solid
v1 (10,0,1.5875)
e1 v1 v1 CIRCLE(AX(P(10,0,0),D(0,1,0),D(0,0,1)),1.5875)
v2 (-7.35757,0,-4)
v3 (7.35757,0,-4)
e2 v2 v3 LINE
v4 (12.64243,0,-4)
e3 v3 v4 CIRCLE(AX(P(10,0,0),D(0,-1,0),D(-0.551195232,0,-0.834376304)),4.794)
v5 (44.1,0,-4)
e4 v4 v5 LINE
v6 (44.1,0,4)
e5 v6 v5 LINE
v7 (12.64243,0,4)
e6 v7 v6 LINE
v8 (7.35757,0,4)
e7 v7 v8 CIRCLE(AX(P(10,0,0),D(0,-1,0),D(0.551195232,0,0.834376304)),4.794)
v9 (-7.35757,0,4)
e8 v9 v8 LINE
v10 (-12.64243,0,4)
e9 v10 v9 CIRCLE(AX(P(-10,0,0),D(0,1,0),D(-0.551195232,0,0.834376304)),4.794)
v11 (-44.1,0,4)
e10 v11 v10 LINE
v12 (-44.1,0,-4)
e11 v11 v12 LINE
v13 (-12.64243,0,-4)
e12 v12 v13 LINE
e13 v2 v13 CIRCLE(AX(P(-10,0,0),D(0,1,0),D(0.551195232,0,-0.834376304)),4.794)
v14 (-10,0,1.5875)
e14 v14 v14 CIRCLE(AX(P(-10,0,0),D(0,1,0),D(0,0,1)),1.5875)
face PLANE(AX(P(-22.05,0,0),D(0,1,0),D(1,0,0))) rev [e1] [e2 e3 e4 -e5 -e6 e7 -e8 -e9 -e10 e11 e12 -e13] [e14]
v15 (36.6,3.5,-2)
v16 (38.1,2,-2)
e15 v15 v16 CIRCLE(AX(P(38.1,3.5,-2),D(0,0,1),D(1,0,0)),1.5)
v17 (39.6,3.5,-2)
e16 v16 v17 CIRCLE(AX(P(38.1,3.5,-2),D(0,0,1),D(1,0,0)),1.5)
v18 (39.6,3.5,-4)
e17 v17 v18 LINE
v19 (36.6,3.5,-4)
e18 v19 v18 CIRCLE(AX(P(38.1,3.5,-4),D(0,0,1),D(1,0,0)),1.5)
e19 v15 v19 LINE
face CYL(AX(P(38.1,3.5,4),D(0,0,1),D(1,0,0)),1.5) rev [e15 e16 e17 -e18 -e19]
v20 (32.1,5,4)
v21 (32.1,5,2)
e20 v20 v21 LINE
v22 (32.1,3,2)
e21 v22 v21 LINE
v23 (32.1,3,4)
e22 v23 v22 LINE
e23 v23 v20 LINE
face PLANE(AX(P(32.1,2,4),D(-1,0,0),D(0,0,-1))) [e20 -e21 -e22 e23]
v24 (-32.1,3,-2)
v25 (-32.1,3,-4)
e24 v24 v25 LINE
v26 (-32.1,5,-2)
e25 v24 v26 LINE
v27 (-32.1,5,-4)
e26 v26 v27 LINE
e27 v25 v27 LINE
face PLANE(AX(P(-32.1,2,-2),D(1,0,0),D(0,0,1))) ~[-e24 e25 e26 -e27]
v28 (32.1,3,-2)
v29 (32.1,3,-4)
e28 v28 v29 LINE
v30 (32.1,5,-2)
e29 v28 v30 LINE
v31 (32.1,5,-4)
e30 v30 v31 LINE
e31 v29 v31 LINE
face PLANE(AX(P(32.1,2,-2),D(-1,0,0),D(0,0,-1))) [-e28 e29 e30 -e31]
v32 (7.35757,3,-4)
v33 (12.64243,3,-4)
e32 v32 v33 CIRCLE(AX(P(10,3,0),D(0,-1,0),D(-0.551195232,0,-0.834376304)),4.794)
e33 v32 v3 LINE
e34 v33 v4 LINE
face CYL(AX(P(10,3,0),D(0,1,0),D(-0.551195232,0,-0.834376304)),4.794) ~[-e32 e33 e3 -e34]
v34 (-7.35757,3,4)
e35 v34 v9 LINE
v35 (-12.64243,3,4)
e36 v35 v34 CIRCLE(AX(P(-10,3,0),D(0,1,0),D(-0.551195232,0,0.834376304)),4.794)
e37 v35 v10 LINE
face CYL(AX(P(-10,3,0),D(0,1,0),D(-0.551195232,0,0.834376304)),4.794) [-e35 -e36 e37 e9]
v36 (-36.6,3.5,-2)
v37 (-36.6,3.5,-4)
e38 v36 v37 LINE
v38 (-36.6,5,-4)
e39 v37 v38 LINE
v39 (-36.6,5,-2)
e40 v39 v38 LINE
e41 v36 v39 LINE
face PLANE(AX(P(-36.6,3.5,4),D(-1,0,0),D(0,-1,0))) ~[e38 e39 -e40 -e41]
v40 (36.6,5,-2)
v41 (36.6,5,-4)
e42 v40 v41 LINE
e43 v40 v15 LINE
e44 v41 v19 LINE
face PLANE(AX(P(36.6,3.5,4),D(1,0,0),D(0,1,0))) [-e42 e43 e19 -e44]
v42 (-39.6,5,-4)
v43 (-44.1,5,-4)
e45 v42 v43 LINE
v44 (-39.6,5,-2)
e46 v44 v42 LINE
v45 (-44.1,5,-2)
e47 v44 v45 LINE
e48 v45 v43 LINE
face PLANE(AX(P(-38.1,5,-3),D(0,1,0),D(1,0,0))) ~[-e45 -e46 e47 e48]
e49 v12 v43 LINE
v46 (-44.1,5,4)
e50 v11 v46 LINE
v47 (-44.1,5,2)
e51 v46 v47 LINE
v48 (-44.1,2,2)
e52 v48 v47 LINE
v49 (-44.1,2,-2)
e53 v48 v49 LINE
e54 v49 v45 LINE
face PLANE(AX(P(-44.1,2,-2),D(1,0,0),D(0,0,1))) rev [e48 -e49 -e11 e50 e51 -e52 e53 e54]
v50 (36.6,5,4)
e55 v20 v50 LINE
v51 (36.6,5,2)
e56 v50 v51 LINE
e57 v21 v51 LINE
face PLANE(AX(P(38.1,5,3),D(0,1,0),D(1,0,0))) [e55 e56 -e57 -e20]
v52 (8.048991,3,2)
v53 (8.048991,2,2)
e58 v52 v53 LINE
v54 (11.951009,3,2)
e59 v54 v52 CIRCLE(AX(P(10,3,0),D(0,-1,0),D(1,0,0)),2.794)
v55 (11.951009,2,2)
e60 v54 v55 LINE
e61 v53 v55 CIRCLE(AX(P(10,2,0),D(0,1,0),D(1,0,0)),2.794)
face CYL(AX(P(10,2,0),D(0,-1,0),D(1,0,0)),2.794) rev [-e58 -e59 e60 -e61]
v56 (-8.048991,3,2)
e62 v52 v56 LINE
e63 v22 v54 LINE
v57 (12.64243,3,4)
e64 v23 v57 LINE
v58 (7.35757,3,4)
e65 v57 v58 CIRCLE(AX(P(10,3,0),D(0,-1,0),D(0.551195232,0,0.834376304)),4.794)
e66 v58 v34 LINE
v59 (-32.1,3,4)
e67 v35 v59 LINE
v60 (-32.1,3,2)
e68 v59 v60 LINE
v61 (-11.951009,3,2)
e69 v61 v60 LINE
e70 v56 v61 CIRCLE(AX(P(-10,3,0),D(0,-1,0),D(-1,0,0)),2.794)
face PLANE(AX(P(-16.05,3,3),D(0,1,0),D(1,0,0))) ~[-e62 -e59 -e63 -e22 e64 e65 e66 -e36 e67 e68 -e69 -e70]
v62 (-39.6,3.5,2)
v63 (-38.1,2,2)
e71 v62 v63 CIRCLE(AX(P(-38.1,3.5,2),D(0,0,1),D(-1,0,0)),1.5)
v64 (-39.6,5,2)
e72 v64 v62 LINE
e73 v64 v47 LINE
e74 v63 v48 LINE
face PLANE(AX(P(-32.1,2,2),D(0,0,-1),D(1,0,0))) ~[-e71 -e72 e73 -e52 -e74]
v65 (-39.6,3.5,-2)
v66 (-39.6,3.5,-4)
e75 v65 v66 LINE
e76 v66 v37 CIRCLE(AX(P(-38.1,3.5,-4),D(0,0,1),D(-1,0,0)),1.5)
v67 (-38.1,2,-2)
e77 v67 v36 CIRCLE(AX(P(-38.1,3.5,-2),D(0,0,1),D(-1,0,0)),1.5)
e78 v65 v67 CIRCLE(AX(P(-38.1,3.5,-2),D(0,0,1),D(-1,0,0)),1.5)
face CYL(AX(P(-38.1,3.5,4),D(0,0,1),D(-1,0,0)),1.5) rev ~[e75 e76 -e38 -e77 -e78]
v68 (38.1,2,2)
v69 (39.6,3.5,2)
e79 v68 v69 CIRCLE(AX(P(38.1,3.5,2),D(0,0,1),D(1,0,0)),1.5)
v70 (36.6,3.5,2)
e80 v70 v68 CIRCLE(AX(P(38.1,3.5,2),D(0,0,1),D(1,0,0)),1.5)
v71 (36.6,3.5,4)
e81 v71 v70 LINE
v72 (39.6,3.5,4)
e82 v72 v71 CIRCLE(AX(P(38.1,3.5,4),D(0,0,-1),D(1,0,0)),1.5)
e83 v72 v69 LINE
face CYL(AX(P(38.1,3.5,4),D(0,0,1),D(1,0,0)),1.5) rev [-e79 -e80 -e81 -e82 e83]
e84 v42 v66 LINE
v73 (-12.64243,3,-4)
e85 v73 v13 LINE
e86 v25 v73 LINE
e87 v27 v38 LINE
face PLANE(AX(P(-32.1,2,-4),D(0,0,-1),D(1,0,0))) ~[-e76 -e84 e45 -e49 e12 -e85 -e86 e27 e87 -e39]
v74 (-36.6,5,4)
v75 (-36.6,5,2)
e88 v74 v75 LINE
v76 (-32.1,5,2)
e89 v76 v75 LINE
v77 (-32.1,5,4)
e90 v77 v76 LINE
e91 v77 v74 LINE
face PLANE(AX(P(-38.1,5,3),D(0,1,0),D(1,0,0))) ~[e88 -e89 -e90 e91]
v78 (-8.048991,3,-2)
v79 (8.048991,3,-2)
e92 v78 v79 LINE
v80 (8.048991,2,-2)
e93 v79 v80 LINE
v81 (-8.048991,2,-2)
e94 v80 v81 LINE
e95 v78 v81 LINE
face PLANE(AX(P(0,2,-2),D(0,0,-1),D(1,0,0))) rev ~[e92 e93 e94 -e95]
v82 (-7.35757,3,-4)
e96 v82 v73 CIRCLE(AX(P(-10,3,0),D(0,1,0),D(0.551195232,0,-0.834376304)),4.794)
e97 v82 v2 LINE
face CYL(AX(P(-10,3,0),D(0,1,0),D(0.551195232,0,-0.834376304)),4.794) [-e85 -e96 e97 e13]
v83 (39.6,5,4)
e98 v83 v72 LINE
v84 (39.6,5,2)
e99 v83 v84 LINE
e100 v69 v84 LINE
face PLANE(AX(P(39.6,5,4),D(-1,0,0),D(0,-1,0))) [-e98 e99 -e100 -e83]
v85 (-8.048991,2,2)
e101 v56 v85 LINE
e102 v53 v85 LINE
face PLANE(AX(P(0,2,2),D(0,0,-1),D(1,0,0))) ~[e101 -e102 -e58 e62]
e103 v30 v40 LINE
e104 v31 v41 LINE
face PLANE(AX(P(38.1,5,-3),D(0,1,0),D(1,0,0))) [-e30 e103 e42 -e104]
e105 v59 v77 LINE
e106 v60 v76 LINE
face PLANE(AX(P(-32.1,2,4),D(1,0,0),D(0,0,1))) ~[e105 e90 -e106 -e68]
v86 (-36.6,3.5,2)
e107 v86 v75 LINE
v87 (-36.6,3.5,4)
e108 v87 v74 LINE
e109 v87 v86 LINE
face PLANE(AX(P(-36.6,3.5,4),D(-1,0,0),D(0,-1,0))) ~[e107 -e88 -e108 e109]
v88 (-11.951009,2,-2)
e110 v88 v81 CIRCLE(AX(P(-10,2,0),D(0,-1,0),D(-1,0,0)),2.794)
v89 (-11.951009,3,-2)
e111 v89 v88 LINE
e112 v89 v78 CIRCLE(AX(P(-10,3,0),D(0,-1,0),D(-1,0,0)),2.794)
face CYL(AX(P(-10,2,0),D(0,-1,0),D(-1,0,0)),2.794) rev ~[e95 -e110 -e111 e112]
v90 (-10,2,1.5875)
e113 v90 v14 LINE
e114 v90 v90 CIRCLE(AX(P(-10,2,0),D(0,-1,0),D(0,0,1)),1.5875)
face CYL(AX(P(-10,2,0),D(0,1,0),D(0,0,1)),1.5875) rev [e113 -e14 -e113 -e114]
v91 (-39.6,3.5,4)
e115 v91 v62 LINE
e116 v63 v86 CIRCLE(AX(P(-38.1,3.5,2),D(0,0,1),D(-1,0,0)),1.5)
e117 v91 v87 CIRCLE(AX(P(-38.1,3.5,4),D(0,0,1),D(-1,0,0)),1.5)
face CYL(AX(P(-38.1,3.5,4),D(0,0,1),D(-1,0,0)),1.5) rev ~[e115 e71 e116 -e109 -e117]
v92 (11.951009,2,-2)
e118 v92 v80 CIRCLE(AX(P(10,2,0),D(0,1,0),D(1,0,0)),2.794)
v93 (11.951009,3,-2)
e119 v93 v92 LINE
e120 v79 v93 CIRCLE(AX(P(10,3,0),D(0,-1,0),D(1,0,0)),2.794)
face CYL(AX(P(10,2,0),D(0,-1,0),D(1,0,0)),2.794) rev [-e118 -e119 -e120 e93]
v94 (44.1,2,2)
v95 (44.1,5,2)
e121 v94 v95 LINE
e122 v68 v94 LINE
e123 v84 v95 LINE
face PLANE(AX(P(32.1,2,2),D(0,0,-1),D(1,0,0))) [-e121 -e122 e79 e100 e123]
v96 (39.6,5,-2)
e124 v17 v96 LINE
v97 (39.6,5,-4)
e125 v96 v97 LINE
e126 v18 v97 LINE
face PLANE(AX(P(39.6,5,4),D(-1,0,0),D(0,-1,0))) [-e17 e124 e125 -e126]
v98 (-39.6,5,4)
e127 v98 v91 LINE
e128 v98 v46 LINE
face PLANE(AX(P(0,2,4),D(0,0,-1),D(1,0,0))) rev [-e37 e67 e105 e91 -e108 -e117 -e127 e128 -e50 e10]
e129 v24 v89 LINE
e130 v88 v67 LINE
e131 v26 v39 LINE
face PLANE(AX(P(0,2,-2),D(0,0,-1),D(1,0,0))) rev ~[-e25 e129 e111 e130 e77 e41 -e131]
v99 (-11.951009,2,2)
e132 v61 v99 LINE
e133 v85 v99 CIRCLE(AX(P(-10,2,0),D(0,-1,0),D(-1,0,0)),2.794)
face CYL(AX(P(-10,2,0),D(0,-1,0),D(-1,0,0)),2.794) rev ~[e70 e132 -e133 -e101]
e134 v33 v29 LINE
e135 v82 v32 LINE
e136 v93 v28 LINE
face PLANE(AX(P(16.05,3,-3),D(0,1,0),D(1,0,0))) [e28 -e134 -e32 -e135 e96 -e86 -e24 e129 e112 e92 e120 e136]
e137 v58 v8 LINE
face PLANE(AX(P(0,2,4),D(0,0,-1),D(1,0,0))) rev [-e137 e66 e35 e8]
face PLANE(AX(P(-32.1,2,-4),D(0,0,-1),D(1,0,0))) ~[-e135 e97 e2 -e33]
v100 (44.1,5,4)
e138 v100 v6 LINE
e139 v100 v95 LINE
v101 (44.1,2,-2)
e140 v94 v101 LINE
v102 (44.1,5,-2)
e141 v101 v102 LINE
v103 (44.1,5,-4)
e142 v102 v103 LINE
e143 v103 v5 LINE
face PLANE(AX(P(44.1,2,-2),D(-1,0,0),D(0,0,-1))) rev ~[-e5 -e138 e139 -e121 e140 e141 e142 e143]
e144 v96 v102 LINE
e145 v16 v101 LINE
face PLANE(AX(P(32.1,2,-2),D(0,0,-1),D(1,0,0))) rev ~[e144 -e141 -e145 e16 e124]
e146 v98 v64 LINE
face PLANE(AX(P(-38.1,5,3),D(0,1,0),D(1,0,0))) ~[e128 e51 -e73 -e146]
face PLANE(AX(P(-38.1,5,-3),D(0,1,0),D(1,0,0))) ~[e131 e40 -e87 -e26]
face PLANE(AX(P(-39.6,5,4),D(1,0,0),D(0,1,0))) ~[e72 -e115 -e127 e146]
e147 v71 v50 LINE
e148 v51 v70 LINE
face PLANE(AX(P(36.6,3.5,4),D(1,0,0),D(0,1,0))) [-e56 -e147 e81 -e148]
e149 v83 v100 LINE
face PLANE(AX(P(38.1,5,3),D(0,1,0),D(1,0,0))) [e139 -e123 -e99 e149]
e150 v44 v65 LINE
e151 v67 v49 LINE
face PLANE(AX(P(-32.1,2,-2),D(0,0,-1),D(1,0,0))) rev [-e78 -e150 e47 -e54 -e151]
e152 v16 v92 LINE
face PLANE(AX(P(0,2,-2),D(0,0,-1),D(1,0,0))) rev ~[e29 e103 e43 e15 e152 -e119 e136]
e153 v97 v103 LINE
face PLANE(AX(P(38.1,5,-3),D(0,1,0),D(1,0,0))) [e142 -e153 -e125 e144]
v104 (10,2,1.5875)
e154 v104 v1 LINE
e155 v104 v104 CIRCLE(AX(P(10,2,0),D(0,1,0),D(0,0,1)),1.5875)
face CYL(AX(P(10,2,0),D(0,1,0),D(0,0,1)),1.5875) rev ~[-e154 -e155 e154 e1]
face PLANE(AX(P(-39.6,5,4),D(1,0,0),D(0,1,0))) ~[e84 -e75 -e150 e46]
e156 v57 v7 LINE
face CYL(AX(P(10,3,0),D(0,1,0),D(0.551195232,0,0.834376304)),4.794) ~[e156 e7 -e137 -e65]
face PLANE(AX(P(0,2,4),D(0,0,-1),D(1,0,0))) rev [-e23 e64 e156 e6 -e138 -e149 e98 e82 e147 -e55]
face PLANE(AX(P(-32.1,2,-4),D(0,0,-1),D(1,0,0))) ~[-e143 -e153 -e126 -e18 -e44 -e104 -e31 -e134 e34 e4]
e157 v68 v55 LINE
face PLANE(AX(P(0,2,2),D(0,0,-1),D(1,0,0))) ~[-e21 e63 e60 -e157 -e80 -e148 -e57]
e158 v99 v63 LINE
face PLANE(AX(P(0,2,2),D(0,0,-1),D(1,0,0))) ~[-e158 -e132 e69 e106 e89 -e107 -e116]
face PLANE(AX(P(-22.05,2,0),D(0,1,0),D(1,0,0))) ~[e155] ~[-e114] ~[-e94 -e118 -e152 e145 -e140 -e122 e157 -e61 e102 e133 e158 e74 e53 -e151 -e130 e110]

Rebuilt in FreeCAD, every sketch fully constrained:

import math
import FreeCAD as App
import Part
import Sketcher

V = App.Vector
Q = App.Units.Quantity

doc = App.newDocument("Part")
body = doc.addObject("PartDesign::Body", "Body")

sketch1 = doc.addObject("Sketcher::SketchObject", "Sketch")
body.addObject(sketch1)
sketch1.AttachmentSupport = (doc.XZ_Plane, [""])
sketch1.MapMode = "FlatFace"
sketch1.addGeometry([
    Part.LineSegment(V(0, -4, 0), V(0, 4, 0)),
    Part.LineSegment(V(0, 4, 0), V(44, 4, 0)),
    Part.LineSegment(V(44, 4, 0), V(44, -4, 0)),
    Part.LineSegment(V(44, -4, 0), V(0, -4, 0)),
], False)
sketch1.addConstraint([
    Sketcher.Constraint("Coincident", 0, 2, 1, 1),
    Sketcher.Constraint("Coincident", 1, 2, 2, 1),
    Sketcher.Constraint("Coincident", 2, 2, 3, 1),
    Sketcher.Constraint("Coincident", 3, 2, 0, 1),
    Sketcher.Constraint("Vertical", 0),
    Sketcher.Constraint("Horizontal", 1),
    Sketcher.Constraint("Vertical", 2),
    Sketcher.Constraint("Horizontal", 3),
    Sketcher.Constraint("Symmetric", 0, 2, 3, 2, -1, 1),
    Sketcher.Constraint("DistanceY", 0, 1, 0, 2, Q("8 mm")),
    Sketcher.Constraint("DistanceX", 1, 1, 1, 2, Q("44.1 mm")),
])
pad1 = doc.addObject("PartDesign::Pad", "Pad")
body.addObject(pad1)
pad1.Profile = sketch1
pad1.Length = 2
pad1.Reversed = True

sketch2 = doc.addObject("Sketcher::SketchObject", "Sketch001")
body.addObject(sketch2)
sketch2.AttachmentSupport = (doc.XZ_Plane, [""])
sketch2.MapMode = "FlatFace"
sketch2.AttachmentOffset = App.Placement(V(0, 0, -2), App.Rotation())
sketch2.addGeometry([
    Part.LineSegment(V(32.1, -4, 0), V(32.1, -2, 0)),
    Part.LineSegment(V(32.1, -2, 0), V(44.1, -2, 0)),
    Part.LineSegment(V(44.1, -2, 0), V(44.1, -4, 0)),
    Part.LineSegment(V(44.1, -4, 0), V(32.1, -4, 0)),
    Part.LineSegment(V(32.1, 2, 0), V(32.1, 4, 0)),
    Part.LineSegment(V(32.1, 4, 0), V(44.1, 4, 0)),
    Part.LineSegment(V(44.1, 4, 0), V(44.1, 2, 0)),
    Part.LineSegment(V(44.1, 2, 0), V(32.1, 2, 0)),
], False)
sketch2.addConstraint([
    Sketcher.Constraint("Coincident", 0, 2, 1, 1),
    Sketcher.Constraint("Coincident", 1, 2, 2, 1),
    Sketcher.Constraint("Coincident", 2, 2, 3, 1),
    Sketcher.Constraint("Coincident", 3, 2, 0, 1),
    Sketcher.Constraint("Coincident", 4, 2, 5, 1),
    Sketcher.Constraint("Coincident", 5, 2, 6, 1),
    Sketcher.Constraint("Coincident", 6, 2, 7, 1),
    Sketcher.Constraint("Coincident", 7, 2, 4, 1),
    Sketcher.Constraint("Vertical", 0),
    Sketcher.Constraint("Horizontal", 1),
    Sketcher.Constraint("Vertical", 2),
    Sketcher.Constraint("Horizontal", 3),
    Sketcher.Constraint("Vertical", 4),
    Sketcher.Constraint("Horizontal", 5),
    Sketcher.Constraint("Vertical", 6),
    Sketcher.Constraint("Horizontal", 7),
    Sketcher.Constraint("Symmetric", 3, 2, 4, 2, -1),
    Sketcher.Constraint("Symmetric", 1, 2, 6, 2, -1),
    Sketcher.Constraint("DistanceX", 1, 1, 1, 2, Q("12 mm")),
    Sketcher.Constraint("DistanceY", 0, 1, 0, 2, Q("2 mm")),
    Sketcher.Constraint("DistanceY", 0, 2, -1, 1, Q("2 mm")),
    Sketcher.Constraint("DistanceX", -1, 1, 0, 2, Q("32.1 mm")),
])
pad2 = doc.addObject("PartDesign::Pad", "Pad001")
body.addObject(pad2)
pad2.Profile = sketch2
pad2.Length = 3
pad2.Reversed = True

sketch3 = doc.addObject("Sketcher::SketchObject", "Sketch002")
body.addObject(sketch3)
sketch3.AttachmentSupport = (doc.XY_Plane, [""])
sketch3.MapMode = "FlatFace"
sketch3.AttachmentOffset = App.Placement(V(0, 0, 4), App.Rotation())
sketch3.addGeometry([
    Part.LineSegment(V(36.6, 5, 0), V(36.6, 3.5, 0)),
    Part.ArcOfCircle(Part.Circle(V(38.1, 3.5, 0), V(0, 0, 1), 1.5), math.radians(180), math.radians(360)),
    Part.LineSegment(V(39.6, 3.5, 0), V(39.6, 5, 0)),
    Part.LineSegment(V(39.6, 5, 0), V(36.6, 5, 0)),
], False)
sketch3.addConstraint([
    Sketcher.Constraint("Tangent", 0, 2, 1, 1),
    Sketcher.Constraint("Tangent", 1, 2, 2, 1),
    Sketcher.Constraint("Coincident", 2, 2, 3, 1),
    Sketcher.Constraint("Coincident", 3, 2, 0, 1),
    Sketcher.Constraint("Vertical", 0),
    Sketcher.Constraint("Vertical", 2),
    Sketcher.Constraint("Horizontal", 3),
    Sketcher.Constraint("Radius", 1, Q("1.5 mm")),
    Sketcher.Constraint("DistanceY", 0, 2, 0, 1, Q("1.5 mm")),
    Sketcher.Constraint("DistanceY", -1, 1, 2, 2, Q("5 mm")),
    Sketcher.Constraint("DistanceX", -1, 1, 1, 3, Q("38.1 mm")),
])
pocket1 = doc.addObject("PartDesign::Pocket", "Pocket")
body.addObject(pocket1)
pocket1.Profile = sketch3
pocket1.Type = "ThroughAll"

sketch4 = doc.addObject("Sketcher::SketchObject", "Sketch003")
body.addObject(sketch4)
sketch4.AttachmentSupport = (doc.XZ_Plane, [""])
sketch4.MapMode = "FlatFace"
sketch4.AttachmentOffset = App.Placement(V(0, 0, -2), App.Rotation())
sketch4.addGeometry([
    Part.LineSegment(V(0, 2, 0), V(0, 4, 0)),
    Part.LineSegment(V(0, 4, 0), V(32.1, 4, 0)),
    Part.LineSegment(V(32.1, 4, 0), V(32.1, 2, 0)),
    Part.LineSegment(V(32.1, 2, 0), V(0, 2, 0)),
    Part.LineSegment(V(0, -4, 0), V(0, -2, 0)),
    Part.LineSegment(V(0, -2, 0), V(32.1, -2, 0)),
    Part.LineSegment(V(32.1, -2, 0), V(32.1, -4, 0)),
    Part.LineSegment(V(32.1, -4, 0), V(0, -4, 0)),
], False)
sketch4.addConstraint([
    Sketcher.Constraint("Coincident", 0, 2, 1, 1),
    Sketcher.Constraint("Coincident", 1, 2, 2, 1),
    Sketcher.Constraint("Coincident", 2, 2, 3, 1),
    Sketcher.Constraint("Coincident", 3, 2, 0, 1),
    Sketcher.Constraint("Coincident", 4, 2, 5, 1),
    Sketcher.Constraint("Coincident", 5, 2, 6, 1),
    Sketcher.Constraint("Coincident", 6, 2, 7, 1),
    Sketcher.Constraint("Coincident", 7, 2, 4, 1),
    Sketcher.Constraint("Vertical", 0),
    Sketcher.Constraint("Horizontal", 1),
    Sketcher.Constraint("Vertical", 2),
    Sketcher.Constraint("Horizontal", 3),
    Sketcher.Constraint("Vertical", 4),
    Sketcher.Constraint("Horizontal", 5),
    Sketcher.Constraint("Vertical", 6),
    Sketcher.Constraint("Horizontal", 7),
    Sketcher.Constraint("Symmetric", 3, 2, 4, 2, -1, 1),
    Sketcher.Constraint("Symmetric", 1, 2, 6, 2, -1),
    Sketcher.Constraint("PointOnObject", 0, 2, -2),
    Sketcher.Constraint("DistanceY", 0, 1, 0, 2, Q("2 mm")),
    Sketcher.Constraint("DistanceX", 1, 1, 1, 2, Q("32.1 mm")),
    Sketcher.Constraint("DistanceY", -1, 1, 0, 2, Q("4 mm")),
])
pad3 = doc.addObject("PartDesign::Pad", "Pad002")
body.addObject(pad3)
pad3.Profile = sketch4
pad3.Length = 1
pad3.Reversed = True
doc.recompute()

mirrored = doc.addObject("PartDesign::Mirrored", "Mirrored")
body.addObject(mirrored)
mirrored.Originals = [pad1, pad2, pocket1, pad3]
mirrored.MirrorPlane = (doc.YZ_Plane, [""])
body.Tip = mirrored

sketch5 = doc.addObject("Sketcher::SketchObject", "Sketch004")
body.addObject(sketch5)
sketch5.AttachmentSupport = (doc.XZ_Plane, [""])
sketch5.MapMode = "FlatFace"
sketch5.AttachmentOffset = App.Placement(V(0, 0, -2), App.Rotation())
sketch5.addGeometry(Part.Circle(V(10, 0, 0), V(0, 0, 1), 2.8), False)
sketch5.addConstraint([
    Sketcher.Constraint("PointOnObject", 0, 3, -1),
    Sketcher.Constraint("Diameter", 0, Q("5.588 mm")),
    Sketcher.Constraint("DistanceX", -1, 1, 0, 3, Q("10 mm")),
])
pocket2 = doc.addObject("PartDesign::Pocket", "Pocket001")
body.addObject(pocket2)
pocket2.Profile = sketch5
pocket2.Type = "ThroughAll"

sketch6 = doc.addObject("Sketcher::SketchObject", "Sketch005")
body.addObject(sketch6)
sketch6.AttachmentSupport = (doc.XZ_Plane, [""])
sketch6.MapMode = "FlatFace"
sketch6.AttachmentOffset = App.Placement(V(0, 0, -2), App.Rotation())
sketch6.addGeometry(Part.Circle(V(10, 0, 0), V(0, 0, 1), 1.6), False)
sketch6.addConstraint([
    Sketcher.Constraint("PointOnObject", 0, 3, -1),
    Sketcher.Constraint("Diameter", 0, Q("3.175 mm")),
    Sketcher.Constraint("DistanceX", -1, 1, 0, 3, Q("10 mm")),
])
pocket3 = doc.addObject("PartDesign::Pocket", "Pocket002")
body.addObject(pocket3)
pocket3.Profile = sketch6
pocket3.Type = "ThroughAll"
pocket3.Reversed = True

sketch7 = doc.addObject("Sketcher::SketchObject", "Sketch006")
body.addObject(sketch7)
sketch7.AttachmentSupport = (doc.XZ_Plane, [""])
sketch7.MapMode = "FlatFace"
sketch7.AttachmentOffset = App.Placement(V(0, 0, -3), App.Rotation())
sketch7.addGeometry([
    Part.LineSegment(V(7.4, -4, 0), V(12.6, -4, 0)),
    Part.ArcOfCircle(Part.Circle(V(10, 0, 0), V(0, 0, 1), 4.8), math.radians(-123), math.radians(-57)),
    Part.LineSegment(V(12.6, 4, 0), V(7.4, 4, 0)),
    Part.ArcOfCircle(Part.Circle(V(10, 0, 0), V(0, 0, 1), 4.8), math.radians(57), math.radians(123)),
], False)
sketch7.addConstraint([
    Sketcher.Constraint("Coincident", 0, 1, 1, 1),
    Sketcher.Constraint("Coincident", 1, 2, 0, 2),
    Sketcher.Constraint("Coincident", 2, 1, 3, 1),
    Sketcher.Constraint("Coincident", 3, 2, 2, 2),
    Sketcher.Constraint("Horizontal", 0),
    Sketcher.Constraint("Horizontal", 2),
    Sketcher.Constraint("Coincident", 3, 3, 1, 3),
    Sketcher.Constraint("Equal", 1, 3),
    Sketcher.Constraint("Symmetric", 1, 2, 2, 1, -1),
    Sketcher.Constraint("DistanceX", -1, 1, 1, 3, Q("10 mm")),
    Sketcher.Constraint("DistanceY", 0, 1, -1, 1, Q("4 mm")),
    Sketcher.Constraint("Radius", 1, Q("4.794 mm")),
])
pad4 = doc.addObject("PartDesign::Pad", "Pad003")
body.addObject(pad4)
pad4.Profile = sketch7
pad4.Length = 3
doc.recompute()

mirrored2 = doc.addObject("PartDesign::Mirrored", "Mirrored001")
body.addObject(mirrored2)
mirrored2.Originals = [pocket2, pocket3, pad4]
mirrored2.MirrorPlane = (doc.YZ_Plane, [""])
body.Tip = mirrored2

doc.recompute()
